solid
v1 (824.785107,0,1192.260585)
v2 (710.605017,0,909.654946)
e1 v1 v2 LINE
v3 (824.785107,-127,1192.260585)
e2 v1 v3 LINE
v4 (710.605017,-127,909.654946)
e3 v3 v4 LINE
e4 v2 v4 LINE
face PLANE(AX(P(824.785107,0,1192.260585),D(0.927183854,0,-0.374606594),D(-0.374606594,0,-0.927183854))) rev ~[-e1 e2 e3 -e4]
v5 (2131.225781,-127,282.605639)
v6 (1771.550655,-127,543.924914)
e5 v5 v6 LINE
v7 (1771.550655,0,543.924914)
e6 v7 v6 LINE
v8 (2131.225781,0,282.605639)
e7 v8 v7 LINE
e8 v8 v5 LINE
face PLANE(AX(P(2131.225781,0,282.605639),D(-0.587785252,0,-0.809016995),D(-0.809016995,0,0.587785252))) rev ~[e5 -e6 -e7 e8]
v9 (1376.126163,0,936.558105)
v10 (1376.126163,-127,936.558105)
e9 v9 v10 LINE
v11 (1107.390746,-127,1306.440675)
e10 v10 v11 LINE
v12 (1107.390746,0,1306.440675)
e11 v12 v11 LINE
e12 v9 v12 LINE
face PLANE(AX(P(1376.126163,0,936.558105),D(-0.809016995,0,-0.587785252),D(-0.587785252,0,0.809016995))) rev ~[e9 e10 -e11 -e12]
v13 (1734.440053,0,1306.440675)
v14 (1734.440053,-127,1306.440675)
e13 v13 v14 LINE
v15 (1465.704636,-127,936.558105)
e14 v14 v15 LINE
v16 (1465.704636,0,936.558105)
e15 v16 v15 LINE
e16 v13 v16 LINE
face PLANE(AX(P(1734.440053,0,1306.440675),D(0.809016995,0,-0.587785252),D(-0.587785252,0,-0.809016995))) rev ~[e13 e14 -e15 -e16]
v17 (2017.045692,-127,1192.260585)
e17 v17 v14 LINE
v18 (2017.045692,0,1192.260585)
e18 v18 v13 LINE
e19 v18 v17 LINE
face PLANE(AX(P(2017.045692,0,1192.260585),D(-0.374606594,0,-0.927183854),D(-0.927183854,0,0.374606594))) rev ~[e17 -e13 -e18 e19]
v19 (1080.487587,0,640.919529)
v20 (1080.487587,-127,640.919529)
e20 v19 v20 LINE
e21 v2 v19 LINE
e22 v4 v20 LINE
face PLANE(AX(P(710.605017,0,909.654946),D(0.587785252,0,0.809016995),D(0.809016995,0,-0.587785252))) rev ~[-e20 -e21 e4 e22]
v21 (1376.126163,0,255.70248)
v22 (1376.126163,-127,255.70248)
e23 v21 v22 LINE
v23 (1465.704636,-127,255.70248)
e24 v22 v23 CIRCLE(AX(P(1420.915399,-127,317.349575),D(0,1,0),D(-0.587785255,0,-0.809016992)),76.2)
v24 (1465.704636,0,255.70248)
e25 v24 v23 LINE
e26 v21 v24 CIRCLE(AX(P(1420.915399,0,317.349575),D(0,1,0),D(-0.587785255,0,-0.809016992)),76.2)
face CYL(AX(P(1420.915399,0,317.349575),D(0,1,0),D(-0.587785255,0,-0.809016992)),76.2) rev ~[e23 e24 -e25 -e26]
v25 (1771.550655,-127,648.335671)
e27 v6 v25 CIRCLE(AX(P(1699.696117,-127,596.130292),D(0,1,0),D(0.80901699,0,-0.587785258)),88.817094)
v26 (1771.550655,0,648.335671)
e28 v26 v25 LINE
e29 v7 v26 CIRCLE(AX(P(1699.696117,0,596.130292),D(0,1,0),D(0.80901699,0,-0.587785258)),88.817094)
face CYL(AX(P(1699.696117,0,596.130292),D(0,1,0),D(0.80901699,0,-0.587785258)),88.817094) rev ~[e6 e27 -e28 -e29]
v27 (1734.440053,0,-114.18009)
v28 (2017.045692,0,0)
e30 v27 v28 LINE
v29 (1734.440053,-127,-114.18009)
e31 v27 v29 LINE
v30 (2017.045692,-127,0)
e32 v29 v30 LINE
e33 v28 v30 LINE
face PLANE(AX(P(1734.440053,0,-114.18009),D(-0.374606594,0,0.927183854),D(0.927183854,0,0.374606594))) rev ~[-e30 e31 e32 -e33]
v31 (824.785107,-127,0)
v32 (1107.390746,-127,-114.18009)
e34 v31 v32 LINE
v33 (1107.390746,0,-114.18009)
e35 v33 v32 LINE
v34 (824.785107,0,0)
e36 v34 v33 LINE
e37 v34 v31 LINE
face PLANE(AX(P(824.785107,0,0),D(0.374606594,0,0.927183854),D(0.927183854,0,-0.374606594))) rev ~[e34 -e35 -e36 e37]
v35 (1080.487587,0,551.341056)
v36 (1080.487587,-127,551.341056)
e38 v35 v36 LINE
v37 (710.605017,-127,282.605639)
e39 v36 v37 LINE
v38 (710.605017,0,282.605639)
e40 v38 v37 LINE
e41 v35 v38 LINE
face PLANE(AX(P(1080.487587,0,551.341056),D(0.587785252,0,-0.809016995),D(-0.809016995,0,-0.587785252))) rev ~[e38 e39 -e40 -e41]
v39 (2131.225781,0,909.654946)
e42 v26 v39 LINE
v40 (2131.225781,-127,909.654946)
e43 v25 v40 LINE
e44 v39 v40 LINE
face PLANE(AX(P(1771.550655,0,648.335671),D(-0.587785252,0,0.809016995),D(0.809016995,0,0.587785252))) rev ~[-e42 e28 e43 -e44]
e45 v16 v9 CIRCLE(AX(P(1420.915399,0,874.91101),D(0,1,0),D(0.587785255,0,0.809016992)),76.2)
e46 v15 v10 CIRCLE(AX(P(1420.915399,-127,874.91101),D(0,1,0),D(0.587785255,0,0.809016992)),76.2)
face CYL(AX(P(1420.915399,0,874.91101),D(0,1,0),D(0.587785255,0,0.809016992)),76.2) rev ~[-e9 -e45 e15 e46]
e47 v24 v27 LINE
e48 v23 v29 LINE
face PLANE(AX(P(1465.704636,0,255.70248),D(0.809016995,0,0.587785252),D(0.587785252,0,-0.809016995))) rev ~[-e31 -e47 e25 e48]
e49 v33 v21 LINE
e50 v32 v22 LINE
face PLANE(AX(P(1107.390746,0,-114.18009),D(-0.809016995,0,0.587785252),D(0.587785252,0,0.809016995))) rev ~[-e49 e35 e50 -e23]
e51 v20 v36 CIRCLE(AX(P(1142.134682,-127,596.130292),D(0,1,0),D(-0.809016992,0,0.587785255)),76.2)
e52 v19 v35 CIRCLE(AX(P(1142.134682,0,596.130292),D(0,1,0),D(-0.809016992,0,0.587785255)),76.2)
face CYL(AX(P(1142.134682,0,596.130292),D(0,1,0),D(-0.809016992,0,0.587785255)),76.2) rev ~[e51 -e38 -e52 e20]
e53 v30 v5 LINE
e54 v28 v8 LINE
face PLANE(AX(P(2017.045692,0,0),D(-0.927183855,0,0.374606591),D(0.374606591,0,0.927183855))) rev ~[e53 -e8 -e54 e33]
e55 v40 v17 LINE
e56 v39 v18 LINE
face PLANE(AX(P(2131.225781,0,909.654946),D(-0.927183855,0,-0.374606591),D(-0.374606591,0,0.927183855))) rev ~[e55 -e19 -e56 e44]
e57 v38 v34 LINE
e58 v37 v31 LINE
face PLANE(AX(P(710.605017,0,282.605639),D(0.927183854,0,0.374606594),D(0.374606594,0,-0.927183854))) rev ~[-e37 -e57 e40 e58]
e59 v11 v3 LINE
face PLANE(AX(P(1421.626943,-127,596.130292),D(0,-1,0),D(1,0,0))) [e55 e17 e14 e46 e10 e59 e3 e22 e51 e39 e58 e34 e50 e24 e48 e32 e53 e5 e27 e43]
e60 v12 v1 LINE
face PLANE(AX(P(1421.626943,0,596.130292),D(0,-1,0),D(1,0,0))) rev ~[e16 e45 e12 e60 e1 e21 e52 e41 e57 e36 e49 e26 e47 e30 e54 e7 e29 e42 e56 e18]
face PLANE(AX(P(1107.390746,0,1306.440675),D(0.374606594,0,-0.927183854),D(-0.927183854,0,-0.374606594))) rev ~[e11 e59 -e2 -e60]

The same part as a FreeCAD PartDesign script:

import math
import FreeCAD as App
import Part
import Sketcher
Q = App.Units.Quantity

doc = App.newDocument("Part")
params = doc.addObject("Spreadsheet::Sheet", "Params")
for row, (alias, value) in enumerate([
    ("sketch1_radius", "3 in"),
    ("sketch1_length", "12 in"),
    ("sketch1_length2", "18 in"),
    ("pad1_length", "5 in"),
], start=1):
    params.set(f"A{row}", alias)
    params.set(f"B{row}", "=" + value)
    params.setAlias(f"B{row}", alias)

body = doc.addObject("PartDesign::Body", "Body")

# Sketch on XZ plane
sketch1 = body.newObject("Sketcher::SketchObject", "Sketch")
sketch1.AttachmentSupport = (doc.getObject("XZ_Plane"), [""])
sketch1.MapMode = "FlatFace"
sketch1.addGeometry(Part.LineSegment(App.Vector(710.605017, 282.605639, 0), App.Vector(824.785107, 0, 0)), False)
sketch1.addGeometry(Part.LineSegment(App.Vector(824.785107, 0, 0), App.Vector(1107.390746, -114.18009, 0)), False)
sketch1.addGeometry(Part.LineSegment(App.Vector(1107.390746, -114.18009, 0), App.Vector(1376.126163, 255.70248, 0)), False)
sketch1.addGeometry(Part.ArcOfCircle(Part.Circle(App.Vector(1420.915399, 317.349575, 0), App.Vector(0, 0, 1), 76.2), math.radians(-54), math.radians(234)), False)
sketch1.addGeometry(Part.LineSegment(App.Vector(1465.704636, 255.70248, 0), App.Vector(1734.440053, -114.18009, 0)), False)
sketch1.addGeometry(Part.LineSegment(App.Vector(1734.440053, -114.18009, 0), App.Vector(2017.045692, 0, 0)), False)
sketch1.addGeometry(Part.LineSegment(App.Vector(2017.045692, 0, 0), App.Vector(2131.225781, 282.605639, 0)), False)
sketch1.addGeometry(Part.LineSegment(App.Vector(2131.225781, 282.605639, 0), App.Vector(1771.550655, 543.924914, 0)), False)
sketch1.addGeometry(Part.ArcOfCircle(Part.Circle(App.Vector(1699.696117, 596.130292, 0), App.Vector(0, 0, 1), 88.817094), math.radians(36), math.radians(324)), False)
sketch1.addGeometry(Part.LineSegment(App.Vector(1771.550655, 648.335671, 0), App.Vector(2131.225781, 909.654946, 0)), False)
sketch1.addGeometry(Part.LineSegment(App.Vector(2131.225781, 909.654946, 0), App.Vector(2017.045692, 1192.260585, 0)), False)
sketch1.addGeometry(Part.LineSegment(App.Vector(2017.045692, 1192.260585, 0), App.Vector(1734.440053, 1306.440675, 0)), False)
sketch1.addGeometry(Part.LineSegment(App.Vector(1734.440053, 1306.440675, 0), App.Vector(1465.704636, 936.558105, 0)), False)
sketch1.addGeometry(Part.ArcOfCircle(Part.Circle(App.Vector(1420.915399, 874.91101, 0), App.Vector(0, 0, 1), 76.2), math.radians(126), math.radians(414)), False)
sketch1.addGeometry(Part.LineSegment(App.Vector(1376.126163, 936.558105, 0), App.Vector(1107.390746, 1306.440675, 0)), False)
sketch1.addGeometry(Part.LineSegment(App.Vector(1107.390746, 1306.440675, 0), App.Vector(824.785107, 1192.260585, 0)), False)
sketch1.addGeometry(Part.LineSegment(App.Vector(824.785107, 1192.260585, 0), App.Vector(710.605017, 909.654946, 0)), False)
sketch1.addGeometry(Part.LineSegment(App.Vector(710.605017, 909.654946, 0), App.Vector(1080.487587, 640.919529, 0)), False)
sketch1.addGeometry(Part.ArcOfCircle(Part.Circle(App.Vector(1142.134682, 596.130292, 0), App.Vector(0, 0, 1), 76.2), math.radians(-144), math.radians(144)), False)
sketch1.addGeometry(Part.LineSegment(App.Vector(1080.487587, 551.341056, 0), App.Vector(710.605017, 282.605639, 0)), False)
sketch1.addConstraint(Sketcher.Constraint("Coincident", 0, 2, 1, 1))
sketch1.addConstraint(Sketcher.Constraint("Coincident", 1, 2, 2, 1))
sketch1.addConstraint(Sketcher.Constraint("Coincident", 2, 2, 3, 2))
sketch1.addConstraint(Sketcher.Constraint("Coincident", 3, 1, 4, 1))
sketch1.addConstraint(Sketcher.Constraint("Coincident", 4, 2, 5, 1))
sketch1.addConstraint(Sketcher.Constraint("Coincident", 5, 2, 6, 1))
sketch1.addConstraint(Sketcher.Constraint("Coincident", 6, 2, 7, 1))
sketch1.addConstraint(Sketcher.Constraint("Coincident", 7, 2, 8, 2))
sketch1.addConstraint(Sketcher.Constraint("Coincident", 8, 1, 9, 1))
sketch1.addConstraint(Sketcher.Constraint("Coincident", 9, 2, 10, 1))
sketch1.addConstraint(Sketcher.Constraint("Coincident", 10, 2, 11, 1))
sketch1.addConstraint(Sketcher.Constraint("Coincident", 11, 2, 12, 1))
sketch1.addConstraint(Sketcher.Constraint("Coincident", 12, 2, 13, 2))
sketch1.addConstraint(Sketcher.Constraint("Coincident", 13, 1, 14, 1))
sketch1.addConstraint(Sketcher.Constraint("Coincident", 14, 2, 15, 1))
sketch1.addConstraint(Sketcher.Constraint("Coincident", 15, 2, 16, 1))
sketch1.addConstraint(Sketcher.Constraint("Coincident", 16, 2, 17, 1))
sketch1.addConstraint(Sketcher.Constraint("Coincident", 17, 2, 18, 2))
sketch1.addConstraint(Sketcher.Constraint("Coincident", 18, 1, 19, 1))
sketch1.addConstraint(Sketcher.Constraint("Coincident", 19, 2, 0, 1))
sketch1.addConstraint(Sketcher.Constraint("Equal", 3, 13))
sketch1.addConstraint(Sketcher.Constraint("Equal", 13, 18))
sketch1.addConstraint(Sketcher.Constraint("PointOnObject", 0, 2, -1))
sketch1.addConstraint(Sketcher.Constraint("PointOnObject", 5, 2, -1))
sketch1.addConstraint(Sketcher.Constraint("Perpendicular", 0, 5))
sketch1.addConstraint(Sketcher.Constraint("Perpendicular", 1, 6))
sketch1.addConstraint(Sketcher.Constraint("Perpendicular", 2, 7))
sketch1.addConstraint(Sketcher.Constraint("Perpendicular", 4, 9))
sketch1.addConstraint(Sketcher.Constraint("Perpendicular", 5, 10))
sketch1.addConstraint(Sketcher.Constraint("Perpendicular", 6, 11))
sketch1.addConstraint(Sketcher.Constraint("Perpendicular", 7, 12))
sketch1.addConstraint(Sketcher.Constraint("Perpendicular", 9, 14))
sketch1.addConstraint(Sketcher.Constraint("Perpendicular", 10, 15))
sketch1.addConstraint(Sketcher.Constraint("Perpendicular", 11, 16))
sketch1.addConstraint(Sketcher.Constraint("Perpendicular", 12, 17))
sketch1.addConstraint(Sketcher.Constraint("Perpendicular", 14, 19))
sketch1.addConstraint(Sketcher.Constraint("Horizontal", 8, 3, 18, 3))
sketch1.addConstraint(Sketcher.Constraint("Horizontal", 2, 2, 3, 1))
sketch1.addConstraint(Sketcher.Constraint("Horizontal", 1, 2, 4, 2))
sketch1.addConstraint(Sketcher.Constraint("Horizontal", 12, 2, 13, 1))
sketch1.addConstraint(Sketcher.Constraint("Horizontal", 11, 2, 14, 2))
sketch1.addConstraint(Sketcher.Constraint("Horizontal", 10, 2, 15, 2))
sketch1.addConstraint(Sketcher.Constraint("Horizontal", 9, 2, 16, 2))
sketch1.addConstraint(Sketcher.Constraint("Horizontal", 6, 2, 19, 2))
sketch1.addConstraint(Sketcher.Constraint("Vertical", 3, 3, 13, 3))
sketch1.addConstraint(Sketcher.Constraint("Vertical", 7, 2, 8, 1))
sketch1.addConstraint(Sketcher.Constraint("Vertical", 6, 2, 9, 2))
sketch1.addConstraint(Sketcher.Constraint("Vertical", 5, 2, 10, 2))
sketch1.addConstraint(Sketcher.Constraint("Vertical", 4, 2, 11, 2))
sketch1.addConstraint(Sketcher.Constraint("Vertical", 3, 1, 12, 2))
sketch1.addConstraint(Sketcher.Constraint("Vertical", 1, 2, 14, 2))
sketch1.addConstraint(Sketcher.Constraint("Vertical", 0, 2, 15, 2))
sketch1.addConstraint(Sketcher.Constraint("Equal", 0, 1))
sketch1.addConstraint(Sketcher.Constraint("Equal", 14, 17))
sketch1.addConstraint(Sketcher.Constraint("Radius", 3, Q("3 in")))
sketch1.addConstraint(Sketcher.Constraint("Distance", 0, Q("12 in")))
sketch1.addConstraint(Sketcher.Constraint("Distance", 2, Q("18 in")))
sketch1.addConstraint(Sketcher.Constraint("Angle", 0, Q("-68 deg")))
sketch1.addConstraint(Sketcher.Constraint("Angle", 2, Q("54 deg")))
sketch1.addConstraint(Sketcher.Constraint("Radius", 8, Q("88.817094 mm")))
sketch1.addConstraint(Sketcher.Constraint("DistanceX", -1, 1, 3, 3, Q("1420.915399 mm")))
sketch1.addConstraint(Sketcher.Constraint("DistanceY", 1, 2, 13, 3, Q("989.0911 mm")))
sketch1.addConstraint(Sketcher.Constraint("DistanceX", -1, 1, 18, 3, Q("1142.134682 mm")))
sketch1.addConstraint(Sketcher.Constraint("DistanceY", -1, 1, 8, 1, Q("648.335671 mm")))
sketch1.setExpression("Constraints[54]", "Params.sketch1_radius")
sketch1.setExpression("Constraints[55]", "Params.sketch1_length")
sketch1.setExpression("Constraints[56]", "Params.sketch1_length2")
pad1 = body.newObject("PartDesign::Pad", "Pad")
pad1.Profile = sketch1
pad1.setExpression("Length", "Params.pad1_length")

doc.recompute()
